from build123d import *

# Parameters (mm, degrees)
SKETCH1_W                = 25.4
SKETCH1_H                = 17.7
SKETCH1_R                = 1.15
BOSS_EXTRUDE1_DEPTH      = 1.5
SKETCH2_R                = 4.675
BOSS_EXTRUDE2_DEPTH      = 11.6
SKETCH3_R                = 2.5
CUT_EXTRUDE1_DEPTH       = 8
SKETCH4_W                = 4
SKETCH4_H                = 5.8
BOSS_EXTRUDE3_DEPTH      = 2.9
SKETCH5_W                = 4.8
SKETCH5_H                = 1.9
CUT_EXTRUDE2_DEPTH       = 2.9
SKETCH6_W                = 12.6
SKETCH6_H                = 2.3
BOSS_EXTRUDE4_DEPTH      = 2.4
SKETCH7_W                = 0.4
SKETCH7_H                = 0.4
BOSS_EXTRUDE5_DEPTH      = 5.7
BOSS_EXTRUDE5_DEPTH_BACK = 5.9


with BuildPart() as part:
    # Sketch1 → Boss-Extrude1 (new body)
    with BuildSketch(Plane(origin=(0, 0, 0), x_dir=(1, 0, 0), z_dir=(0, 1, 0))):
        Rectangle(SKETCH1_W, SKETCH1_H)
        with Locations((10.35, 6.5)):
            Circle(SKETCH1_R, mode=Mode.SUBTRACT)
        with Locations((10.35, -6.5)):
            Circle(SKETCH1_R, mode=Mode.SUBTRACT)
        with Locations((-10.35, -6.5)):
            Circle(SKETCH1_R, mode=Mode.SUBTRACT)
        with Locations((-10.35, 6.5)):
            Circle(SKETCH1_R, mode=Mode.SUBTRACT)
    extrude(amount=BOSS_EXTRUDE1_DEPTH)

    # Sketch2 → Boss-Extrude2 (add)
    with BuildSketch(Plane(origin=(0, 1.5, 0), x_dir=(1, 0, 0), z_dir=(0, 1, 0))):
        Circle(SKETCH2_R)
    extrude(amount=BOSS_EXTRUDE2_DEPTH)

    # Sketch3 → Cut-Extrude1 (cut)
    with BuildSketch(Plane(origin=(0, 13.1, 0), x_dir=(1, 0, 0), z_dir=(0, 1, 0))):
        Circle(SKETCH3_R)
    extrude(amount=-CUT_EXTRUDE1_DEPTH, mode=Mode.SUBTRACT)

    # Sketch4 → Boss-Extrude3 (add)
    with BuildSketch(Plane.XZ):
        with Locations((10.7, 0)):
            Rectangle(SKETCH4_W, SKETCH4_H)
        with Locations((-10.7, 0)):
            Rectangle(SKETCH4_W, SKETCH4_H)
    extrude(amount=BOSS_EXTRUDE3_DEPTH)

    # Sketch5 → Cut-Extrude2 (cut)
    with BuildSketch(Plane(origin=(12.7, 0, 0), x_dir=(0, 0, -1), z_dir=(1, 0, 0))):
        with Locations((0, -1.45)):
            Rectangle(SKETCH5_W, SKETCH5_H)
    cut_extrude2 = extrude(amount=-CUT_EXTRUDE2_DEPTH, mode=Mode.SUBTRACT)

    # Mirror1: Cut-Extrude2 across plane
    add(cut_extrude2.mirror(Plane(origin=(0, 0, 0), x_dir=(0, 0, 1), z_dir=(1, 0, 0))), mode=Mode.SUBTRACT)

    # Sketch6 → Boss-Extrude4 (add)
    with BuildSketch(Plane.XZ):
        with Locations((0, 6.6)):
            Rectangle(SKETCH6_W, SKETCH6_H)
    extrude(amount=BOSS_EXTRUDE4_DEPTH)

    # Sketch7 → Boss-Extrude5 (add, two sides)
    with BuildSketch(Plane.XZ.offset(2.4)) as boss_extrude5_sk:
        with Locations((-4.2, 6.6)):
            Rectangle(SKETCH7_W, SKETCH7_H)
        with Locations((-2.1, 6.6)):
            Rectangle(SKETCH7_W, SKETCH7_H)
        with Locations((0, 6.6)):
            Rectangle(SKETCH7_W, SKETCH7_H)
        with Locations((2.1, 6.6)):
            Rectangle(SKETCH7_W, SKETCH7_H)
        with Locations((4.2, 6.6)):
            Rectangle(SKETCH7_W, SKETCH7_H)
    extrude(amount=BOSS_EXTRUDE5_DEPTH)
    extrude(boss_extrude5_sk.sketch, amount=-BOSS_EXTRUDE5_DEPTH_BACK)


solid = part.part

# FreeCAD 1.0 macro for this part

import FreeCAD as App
import Part
import Sketcher

V = App.Vector
Q = App.Units.Quantity


def add_polygon(sketch, points):
    """Adds a closed chain of lines whose ends are joined by coincident constraints."""
    first, n = sketch.GeometryCount, len(points)
    for a, b in zip(points, points[1:] + points[:1]):
        sketch.addGeometry(Part.LineSegment(App.Vector(*a, 0), App.Vector(*b, 0)), False)
    for i in range(n):
        sketch.addConstraint(Sketcher.Constraint("Coincident", first + i, 2, first + (i + 1) % n, 1))

doc = App.newDocument("Part")
body = doc.addObject("PartDesign::Body", "Body")

# Sketch on XZ plane
sketch1 = body.newObject("Sketcher::SketchObject", "Sketch")
sketch1.AttachmentSupport = (doc.getObject("XZ_Plane"), [""])
sketch1.MapMode = "FlatFace"
add_polygon(sketch1, [(-12.7, -8.85), (-12.7, 8.85), (12.7, 8.85), (12.7, -8.85)])  # lines 0-3
sketch1.addGeometry(Part.Circle(V(-10.35, 6.5, 0), V(0, 0, 1), 1.15), False)  # 4
sketch1.addGeometry(Part.Circle(V(10.35, 6.5, 0), V(0, 0, 1), 1.15), False)  # 5
sketch1.addGeometry(Part.Circle(V(-10.35, -6.5, 0), V(0, 0, 1), 1.15), False)  # 6
sketch1.addGeometry(Part.Circle(V(10.35, -6.5, 0), V(0, 0, 1), 1.15), False)  # 7
sketch1.addConstraint([
    Sketcher.Constraint("Vertical", 0),
    Sketcher.Constraint("Horizontal", 1),
    Sketcher.Constraint("Vertical", 2),
    Sketcher.Constraint("Horizontal", 3),
    Sketcher.Constraint("Equal", 4, 5),
    Sketcher.Constraint("Equal", 5, 6),
    Sketcher.Constraint("Equal", 6, 7),
    Sketcher.Constraint("Symmetric", 5, 3, 6, 3, -1, 1),
    Sketcher.Constraint("Symmetric", 4, 3, 7, 3, -1, 1),
    Sketcher.Constraint("Symmetric", 0, 2, 2, 2, -1, 1),
    Sketcher.Constraint("Symmetric", 4, 3, 5, 3, -2),
    Sketcher.Constraint("Diameter", 4, Q("2.3 mm")),
    Sketcher.Constraint("DistanceX", 1, 1, 1, 2, Q("25.4 mm")),
    Sketcher.Constraint("DistanceY", 0, 1, 0, 2, Q("17.7 mm")),
    Sketcher.Constraint("DistanceY", 6, 3, 4, 3, Q("13 mm")),
    Sketcher.Constraint("DistanceX", 4, 3, 5, 3, Q("20.7 mm")),
])
pad1 = body.newObject("PartDesign::Pad", "Pad")
pad1.Profile = sketch1
pad1.Length = 1.5
pad1.Reversed = True

# Sketch on XZ plane
sketch2 = body.newObject("Sketcher::SketchObject", "Sketch001")
sketch2.AttachmentSupport = (doc.getObject("XZ_Plane"), [""])
sketch2.MapMode = "FlatFace"
sketch2.AttachmentOffset = App.Placement(V(0, 0, -1.5), App.Rotation())
sketch2.addGeometry(Part.Circle(V(0, 0, 0), V(0, 0, 1), 4.675), False)
sketch2.addConstraint([
    Sketcher.Constraint("Coincident", 0, 3, -1, 1),
    Sketcher.Constraint("Diameter", 0, Q("9.35 mm")),
])
pad2 = body.newObject("PartDesign::Pad", "Pad001")
pad2.Profile = sketch2
pad2.Length = 11.6
pad2.Reversed = True

# Sketch on XZ plane
sketch3 = body.newObject("Sketcher::SketchObject", "Sketch002")
sketch3.AttachmentSupport = (doc.getObject("XZ_Plane"), [""])
sketch3.MapMode = "FlatFace"
sketch3.AttachmentOffset = App.Placement(V(0, 0, -13.1), App.Rotation())
sketch3.addGeometry(Part.Circle(V(0, 0, 0), V(0, 0, 1), 2.5), False)
sketch3.addConstraint([
    Sketcher.Constraint("Coincident", 0, 3, -1, 1),
    Sketcher.Constraint("Diameter", 0, Q("5 mm")),
])
pocket1 = body.newObject("PartDesign::Pocket", "Pocket")
pocket1.Profile = sketch3
pocket1.Length = 8
pocket1.Reversed = True

# Sketch on XZ plane
sketch4 = body.newObject("Sketcher::SketchObject", "Sketch003")
sketch4.AttachmentSupport = (doc.getObject("XZ_Plane"), [""])
sketch4.MapMode = "FlatFace"
add_polygon(sketch4, [(8.7, 2.9), (8.7, -2.9), (12.7, -2.9), (12.7, 2.9)])  # lines 0-3
add_polygon(sketch4, [(-12.7, 2.9), (-12.7, -2.9), (-8.7, -2.9), (-8.7, 2.9)])  # lines 4-7
sketch4.addConstraint([
    Sketcher.Constraint("Vertical", 0),
    Sketcher.Constraint("Horizontal", 1),
    Sketcher.Constraint("Vertical", 2),
    Sketcher.Constraint("Horizontal", 3),
    Sketcher.Constraint("Vertical", 4),
    Sketcher.Constraint("Horizontal", 5),
    Sketcher.Constraint("Vertical", 6),
    Sketcher.Constraint("Horizontal", 7),
    Sketcher.Constraint("Symmetric", 2, 2, 4, 2, -1, 1),
    Sketcher.Constraint("Symmetric", 0, 2, 6, 2, -1, 1),
    Sketcher.Constraint("Horizontal", 1, 2, 4, 2),
    Sketcher.Constraint("DistanceX", 1, 1, 1, 2, Q("4 mm")),
    Sketcher.Constraint("DistanceY", 0, 2, 0, 1, Q("5.8 mm")),
    Sketcher.Constraint("DistanceX", -1, 1, 0, 2, Q("8.7 mm")),
])
pad3 = body.newObject("PartDesign::Pad", "Pad002")
pad3.Profile = sketch4
pad3.Length = 2.9

# Sketch on YZ plane
sketch5 = body.newObject("Sketcher::SketchObject", "Sketch004")
sketch5.AttachmentSupport = (doc.getObject("YZ_Plane"), [""])
sketch5.MapMode = "FlatFace"
sketch5.AttachmentOffset = App.Placement(V(0, 0, 12.7), App.Rotation())
add_polygon(sketch5, [(-0.5, 2.4), (-2.4, 2.4), (-2.4, -2.4), (-0.5, -2.4)])  # lines 0-3
sketch5.addConstraint([
    Sketcher.Constraint("Horizontal", 0),
    Sketcher.Constraint("Vertical", 1),
    Sketcher.Constraint("Horizontal", 2),
    Sketcher.Constraint("Vertical", 3),
    Sketcher.Constraint("DistanceX", 0, 2, 0, 1, Q("1.9 mm")),
    Sketcher.Constraint("DistanceY", 1, 2, 1, 1, Q("4.8 mm")),
    Sketcher.Constraint("DistanceX", 0, 2, -1, 1, Q("2.4 mm")),
    Sketcher.Constraint("DistanceY", -1, 1, 0, 2, Q("2.4 mm")),
])
pocket2 = body.newObject("PartDesign::Pocket", "Pocket001")
pocket2.Profile = sketch5
pocket2.Length = 2.9
doc.recompute()

mirrored = body.newObject("PartDesign::Mirrored", "Mirrored")
mirrored.Originals = [pocket2]
mirrored.MirrorPlane = (doc.getObject("YZ_Plane"), [""])
body.Tip = mirrored

# Sketch on XZ plane
sketch6 = body.newObject("Sketcher::SketchObject", "Sketch005")
sketch6.AttachmentSupport = (doc.getObject("XZ_Plane"), [""])
sketch6.MapMode = "FlatFace"
add_polygon(sketch6, [(-6.3, 7.75), (-6.3, 5.45), (6.3, 5.45), (6.3, 7.75)])  # lines 0-3
sketch6.addConstraint([
    Sketcher.Constraint("Vertical", 0),
    Sketcher.Constraint("Horizontal", 1),
    Sketcher.Constraint("Vertical", 2),
    Sketcher.Constraint("Horizontal", 3),
    Sketcher.Constraint("DistanceX", 1, 1, 1, 2, Q("12.6 mm")),
    Sketcher.Constraint("DistanceY", 0, 2, 0, 1, Q("2.3 mm")),
    Sketcher.Constraint("DistanceX", 0, 2, -1, 1, Q("6.3 mm")),
    Sketcher.Constraint("DistanceY", -1, 1, 0, 2, Q("5.45 mm")),
])
pad4 = body.newObject("PartDesign::Pad", "Pad003")
pad4.Profile = sketch6
pad4.Length = 2.4

# Sketch on XZ plane
sketch7 = body.newObject("Sketcher::SketchObject", "Sketch006")
sketch7.AttachmentSupport = (doc.getObject("XZ_Plane"), [""])
sketch7.MapMode = "FlatFace"
sketch7.AttachmentOffset = App.Placement(V(0, 0, 2.4), App.Rotation())
add_polygon(sketch7, [(-4.4, 6.8), (-4.4, 6.4), (-4, 6.4), (-4, 6.8)])  # lines 0-3
add_polygon(sketch7, [(-2.3, 6.8), (-2.3, 6.4), (-1.9, 6.4), (-1.9, 6.8)])  # lines 4-7
add_polygon(sketch7, [(-0.2, 6.8), (-0.2, 6.4), (0.2, 6.4), (0.2, 6.8)])  # lines 8-11
add_polygon(sketch7, [(1.9, 6.8), (1.9, 6.4), (2.3, 6.4), (2.3, 6.8)])  # lines 12-15
add_polygon(sketch7, [(4, 6.8), (4, 6.4), (4.4, 6.4), (4.4, 6.8)])  # lines 16-19
sketch7.addConstraint([
    Sketcher.Constraint("Vertical", 0),
    Sketcher.Constraint("Horizontal", 1),
    Sketcher.Constraint("Vertical", 2),
    Sketcher.Constraint("Horizontal", 3),
    Sketcher.Constraint("Vertical", 4),
    Sketcher.Constraint("Horizontal", 5),
    Sketcher.Constraint("Vertical", 6),
    Sketcher.Constraint("Horizontal", 7),
    Sketcher.Constraint("Vertical", 8),
    Sketcher.Constraint("Horizontal", 9),
    Sketcher.Constraint("Vertical", 10),
    Sketcher.Constraint("Horizontal", 11),
    Sketcher.Constraint("Vertical", 12),
    Sketcher.Constraint("Horizontal", 13),
    Sketcher.Constraint("Vertical", 14),
    Sketcher.Constraint("Horizontal", 15),
    Sketcher.Constraint("Vertical", 16),
    Sketcher.Constraint("Horizontal", 17),
    Sketcher.Constraint("Vertical", 18),
    Sketcher.Constraint("Horizontal", 19),
    Sketcher.Constraint("Symmetric", 5, 2, 12, 2, -2),
    Sketcher.Constraint("Symmetric", 7, 2, 14, 2, -2),
    Sketcher.Constraint("Symmetric", 1, 2, 16, 2, -2),
    Sketcher.Constraint("Symmetric", 3, 2, 18, 2, -2),
    Sketcher.Constraint("Horizontal", 1, 2, 4, 2),
    Sketcher.Constraint("Horizontal", 3, 2, 6, 2),
    Sketcher.Constraint("Horizontal", 5, 2, 8, 2),
    Sketcher.Constraint("Horizontal", 7, 2, 10, 2),
    Sketcher.Constraint("Equal", 3, 5),
    Sketcher.Constraint("Equal", 7, 9),
    Sketcher.Constraint("Equal", 19, 0),
    Sketcher.Constraint("DistanceX", 1, 1, 1, 2, Q("0.4 mm")),
    Sketcher.Constraint("DistanceX", 1, 2, -1, 1, Q("4 mm")),
    Sketcher.Constraint("DistanceY", -1, 1, 0, 2, Q("6.4 mm")),
    Sketcher.Constraint("DistanceX", 4, 2, -1, 1, Q("2.3 mm")),
    Sketcher.Constraint("DistanceX", 8, 2, -1, 1, Q("0.2 mm")),
])
pad5 = body.newObject("PartDesign::Pad", "Pad004")
pad5.Profile = sketch7
pad5.Type = "TwoLengths"
pad5.Length = 5.7
pad5.Length2 = 5.9

doc.recompute()
